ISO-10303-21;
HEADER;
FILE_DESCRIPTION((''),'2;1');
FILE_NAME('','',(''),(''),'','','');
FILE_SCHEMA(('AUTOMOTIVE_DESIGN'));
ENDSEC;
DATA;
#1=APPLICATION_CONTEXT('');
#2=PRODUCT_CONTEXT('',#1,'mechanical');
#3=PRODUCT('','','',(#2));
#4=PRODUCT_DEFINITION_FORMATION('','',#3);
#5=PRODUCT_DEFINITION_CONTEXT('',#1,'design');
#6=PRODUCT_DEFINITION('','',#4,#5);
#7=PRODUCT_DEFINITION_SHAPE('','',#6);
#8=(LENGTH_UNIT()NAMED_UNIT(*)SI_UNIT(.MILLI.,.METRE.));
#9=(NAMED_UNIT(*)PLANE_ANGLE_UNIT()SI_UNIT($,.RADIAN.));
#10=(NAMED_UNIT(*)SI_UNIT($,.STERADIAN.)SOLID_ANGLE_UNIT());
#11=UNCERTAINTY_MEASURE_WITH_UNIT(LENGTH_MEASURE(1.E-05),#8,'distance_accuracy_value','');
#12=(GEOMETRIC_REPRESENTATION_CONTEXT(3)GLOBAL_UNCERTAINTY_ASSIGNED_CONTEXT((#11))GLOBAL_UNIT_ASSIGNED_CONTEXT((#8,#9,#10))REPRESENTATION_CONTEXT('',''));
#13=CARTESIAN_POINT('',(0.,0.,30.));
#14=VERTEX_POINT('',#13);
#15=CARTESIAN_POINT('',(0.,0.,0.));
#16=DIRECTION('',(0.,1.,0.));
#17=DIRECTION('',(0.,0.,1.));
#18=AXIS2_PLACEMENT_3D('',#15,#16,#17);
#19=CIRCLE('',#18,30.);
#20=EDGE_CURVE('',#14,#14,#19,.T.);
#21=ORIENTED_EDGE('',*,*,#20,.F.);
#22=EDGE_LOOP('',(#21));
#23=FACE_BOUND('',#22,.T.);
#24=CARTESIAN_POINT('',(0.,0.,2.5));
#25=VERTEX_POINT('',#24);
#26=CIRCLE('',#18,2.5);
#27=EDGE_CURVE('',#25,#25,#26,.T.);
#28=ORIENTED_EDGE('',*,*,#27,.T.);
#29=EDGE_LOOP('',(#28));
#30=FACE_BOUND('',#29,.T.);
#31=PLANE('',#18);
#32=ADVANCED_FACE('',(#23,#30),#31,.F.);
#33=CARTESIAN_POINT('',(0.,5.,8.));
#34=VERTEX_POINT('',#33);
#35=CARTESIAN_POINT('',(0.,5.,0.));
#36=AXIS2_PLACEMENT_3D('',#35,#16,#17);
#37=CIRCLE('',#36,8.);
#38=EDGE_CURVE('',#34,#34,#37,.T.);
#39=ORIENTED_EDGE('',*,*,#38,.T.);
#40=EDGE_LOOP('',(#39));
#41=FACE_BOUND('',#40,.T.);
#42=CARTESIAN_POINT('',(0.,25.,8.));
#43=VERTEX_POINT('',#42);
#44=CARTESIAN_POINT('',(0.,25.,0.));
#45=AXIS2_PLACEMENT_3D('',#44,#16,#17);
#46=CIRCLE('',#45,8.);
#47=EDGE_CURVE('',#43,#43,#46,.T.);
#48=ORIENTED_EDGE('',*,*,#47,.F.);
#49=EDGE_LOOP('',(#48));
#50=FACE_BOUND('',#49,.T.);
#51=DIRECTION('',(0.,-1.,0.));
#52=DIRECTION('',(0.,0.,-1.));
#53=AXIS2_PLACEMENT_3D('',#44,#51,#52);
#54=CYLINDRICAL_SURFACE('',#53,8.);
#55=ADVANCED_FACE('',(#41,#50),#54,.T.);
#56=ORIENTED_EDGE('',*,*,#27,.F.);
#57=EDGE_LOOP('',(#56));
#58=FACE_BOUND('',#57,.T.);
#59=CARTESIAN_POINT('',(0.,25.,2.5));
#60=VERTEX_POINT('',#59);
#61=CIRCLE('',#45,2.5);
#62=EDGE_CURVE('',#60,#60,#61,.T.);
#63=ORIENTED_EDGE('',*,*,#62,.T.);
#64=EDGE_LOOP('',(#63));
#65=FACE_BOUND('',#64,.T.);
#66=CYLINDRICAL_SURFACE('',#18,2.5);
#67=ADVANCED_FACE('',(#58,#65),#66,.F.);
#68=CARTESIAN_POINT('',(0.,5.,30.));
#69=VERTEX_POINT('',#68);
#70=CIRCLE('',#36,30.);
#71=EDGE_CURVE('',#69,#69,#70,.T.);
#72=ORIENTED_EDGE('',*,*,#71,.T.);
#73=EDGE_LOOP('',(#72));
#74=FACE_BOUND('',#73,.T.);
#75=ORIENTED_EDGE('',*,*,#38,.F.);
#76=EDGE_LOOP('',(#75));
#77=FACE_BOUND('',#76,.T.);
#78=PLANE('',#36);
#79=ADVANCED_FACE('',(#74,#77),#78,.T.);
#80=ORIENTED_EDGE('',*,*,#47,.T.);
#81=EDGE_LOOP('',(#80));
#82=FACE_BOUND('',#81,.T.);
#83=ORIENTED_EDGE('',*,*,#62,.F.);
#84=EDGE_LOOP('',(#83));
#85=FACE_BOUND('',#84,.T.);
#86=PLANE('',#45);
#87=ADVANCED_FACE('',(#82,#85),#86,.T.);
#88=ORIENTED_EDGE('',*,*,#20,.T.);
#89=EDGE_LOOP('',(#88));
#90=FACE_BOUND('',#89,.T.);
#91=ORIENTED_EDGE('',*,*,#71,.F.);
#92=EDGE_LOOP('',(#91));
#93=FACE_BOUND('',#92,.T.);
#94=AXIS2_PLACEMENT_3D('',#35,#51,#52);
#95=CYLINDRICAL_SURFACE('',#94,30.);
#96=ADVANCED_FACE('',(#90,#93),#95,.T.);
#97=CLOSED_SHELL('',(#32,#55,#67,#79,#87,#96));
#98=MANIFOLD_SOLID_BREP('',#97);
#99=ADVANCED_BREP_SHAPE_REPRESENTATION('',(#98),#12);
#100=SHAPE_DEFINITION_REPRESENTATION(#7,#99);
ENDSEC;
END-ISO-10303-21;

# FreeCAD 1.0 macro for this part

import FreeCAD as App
import Part
import Sketcher
Q = App.Units.Quantity

doc = App.newDocument("Part")
body = doc.addObject("PartDesign::Body", "Body")

# Sketch on XZ plane
sketch1 = doc.addObject("Sketcher::SketchObject", "Sketch")
body.addObject(sketch1)
sketch1.AttachmentSupport = (doc.XZ_Plane, [""])
sketch1.MapMode = "FlatFace"
sketch1.addGeometry(Part.Circle(App.Vector(0, 0, 0), App.Vector(0, 0, 1), 30), False)
sketch1.addConstraint(Sketcher.Constraint("Coincident", 0, 3, -1, 1))
sketch1.addConstraint(Sketcher.Constraint("Diameter", 0, Q("60 mm")))
pad1 = doc.addObject("PartDesign::Pad", "Pad")
body.addObject(pad1)
pad1.Profile = sketch1
pad1.Length = 5
pad1.Reversed = True

# Sketch on XZ plane
sketch2 = doc.addObject("Sketcher::SketchObject", "Sketch001")
body.addObject(sketch2)
sketch2.AttachmentSupport = (doc.XZ_Plane, [""])
sketch2.MapMode = "FlatFace"
sketch2.AttachmentOffset = App.Placement(App.Vector(0, 0, -5), App.Rotation())
sketch2.addGeometry(Part.Circle(App.Vector(0, 0, 0), App.Vector(0, 0, 1), 8), False)
sketch2.addConstraint(Sketcher.Constraint("Coincident", 0, 3, -1, 1))
sketch2.addConstraint(Sketcher.Constraint("Diameter", 0, Q("16 mm")))
pad2 = doc.addObject("PartDesign::Pad", "Pad001")
body.addObject(pad2)
pad2.Profile = sketch2
pad2.Length = 20
pad2.Reversed = True

# Sketch on XZ plane
sketch3 = doc.addObject("Sketcher::SketchObject", "Sketch002")
body.addObject(sketch3)
sketch3.AttachmentSupport = (doc.XZ_Plane, [""])
sketch3.MapMode = "FlatFace"
sketch3.AttachmentOffset = App.Placement(App.Vector(0, 0, -25), App.Rotation())
sketch3.addGeometry(Part.Circle(App.Vector(0, 0, 0), App.Vector(0, 0, 1), 2.5), False)
sketch3.addConstraint(Sketcher.Constraint("Coincident", 0, 3, -1, 1))
sketch3.addConstraint(Sketcher.Constraint("Diameter", 0, Q("5 mm")))
pocket1 = doc.addObject("PartDesign::Pocket", "Pocket")
body.addObject(pocket1)
pocket1.Profile = sketch3
pocket1.Type = "ThroughAll"
pocket1.Reversed = True

doc.recompute()
